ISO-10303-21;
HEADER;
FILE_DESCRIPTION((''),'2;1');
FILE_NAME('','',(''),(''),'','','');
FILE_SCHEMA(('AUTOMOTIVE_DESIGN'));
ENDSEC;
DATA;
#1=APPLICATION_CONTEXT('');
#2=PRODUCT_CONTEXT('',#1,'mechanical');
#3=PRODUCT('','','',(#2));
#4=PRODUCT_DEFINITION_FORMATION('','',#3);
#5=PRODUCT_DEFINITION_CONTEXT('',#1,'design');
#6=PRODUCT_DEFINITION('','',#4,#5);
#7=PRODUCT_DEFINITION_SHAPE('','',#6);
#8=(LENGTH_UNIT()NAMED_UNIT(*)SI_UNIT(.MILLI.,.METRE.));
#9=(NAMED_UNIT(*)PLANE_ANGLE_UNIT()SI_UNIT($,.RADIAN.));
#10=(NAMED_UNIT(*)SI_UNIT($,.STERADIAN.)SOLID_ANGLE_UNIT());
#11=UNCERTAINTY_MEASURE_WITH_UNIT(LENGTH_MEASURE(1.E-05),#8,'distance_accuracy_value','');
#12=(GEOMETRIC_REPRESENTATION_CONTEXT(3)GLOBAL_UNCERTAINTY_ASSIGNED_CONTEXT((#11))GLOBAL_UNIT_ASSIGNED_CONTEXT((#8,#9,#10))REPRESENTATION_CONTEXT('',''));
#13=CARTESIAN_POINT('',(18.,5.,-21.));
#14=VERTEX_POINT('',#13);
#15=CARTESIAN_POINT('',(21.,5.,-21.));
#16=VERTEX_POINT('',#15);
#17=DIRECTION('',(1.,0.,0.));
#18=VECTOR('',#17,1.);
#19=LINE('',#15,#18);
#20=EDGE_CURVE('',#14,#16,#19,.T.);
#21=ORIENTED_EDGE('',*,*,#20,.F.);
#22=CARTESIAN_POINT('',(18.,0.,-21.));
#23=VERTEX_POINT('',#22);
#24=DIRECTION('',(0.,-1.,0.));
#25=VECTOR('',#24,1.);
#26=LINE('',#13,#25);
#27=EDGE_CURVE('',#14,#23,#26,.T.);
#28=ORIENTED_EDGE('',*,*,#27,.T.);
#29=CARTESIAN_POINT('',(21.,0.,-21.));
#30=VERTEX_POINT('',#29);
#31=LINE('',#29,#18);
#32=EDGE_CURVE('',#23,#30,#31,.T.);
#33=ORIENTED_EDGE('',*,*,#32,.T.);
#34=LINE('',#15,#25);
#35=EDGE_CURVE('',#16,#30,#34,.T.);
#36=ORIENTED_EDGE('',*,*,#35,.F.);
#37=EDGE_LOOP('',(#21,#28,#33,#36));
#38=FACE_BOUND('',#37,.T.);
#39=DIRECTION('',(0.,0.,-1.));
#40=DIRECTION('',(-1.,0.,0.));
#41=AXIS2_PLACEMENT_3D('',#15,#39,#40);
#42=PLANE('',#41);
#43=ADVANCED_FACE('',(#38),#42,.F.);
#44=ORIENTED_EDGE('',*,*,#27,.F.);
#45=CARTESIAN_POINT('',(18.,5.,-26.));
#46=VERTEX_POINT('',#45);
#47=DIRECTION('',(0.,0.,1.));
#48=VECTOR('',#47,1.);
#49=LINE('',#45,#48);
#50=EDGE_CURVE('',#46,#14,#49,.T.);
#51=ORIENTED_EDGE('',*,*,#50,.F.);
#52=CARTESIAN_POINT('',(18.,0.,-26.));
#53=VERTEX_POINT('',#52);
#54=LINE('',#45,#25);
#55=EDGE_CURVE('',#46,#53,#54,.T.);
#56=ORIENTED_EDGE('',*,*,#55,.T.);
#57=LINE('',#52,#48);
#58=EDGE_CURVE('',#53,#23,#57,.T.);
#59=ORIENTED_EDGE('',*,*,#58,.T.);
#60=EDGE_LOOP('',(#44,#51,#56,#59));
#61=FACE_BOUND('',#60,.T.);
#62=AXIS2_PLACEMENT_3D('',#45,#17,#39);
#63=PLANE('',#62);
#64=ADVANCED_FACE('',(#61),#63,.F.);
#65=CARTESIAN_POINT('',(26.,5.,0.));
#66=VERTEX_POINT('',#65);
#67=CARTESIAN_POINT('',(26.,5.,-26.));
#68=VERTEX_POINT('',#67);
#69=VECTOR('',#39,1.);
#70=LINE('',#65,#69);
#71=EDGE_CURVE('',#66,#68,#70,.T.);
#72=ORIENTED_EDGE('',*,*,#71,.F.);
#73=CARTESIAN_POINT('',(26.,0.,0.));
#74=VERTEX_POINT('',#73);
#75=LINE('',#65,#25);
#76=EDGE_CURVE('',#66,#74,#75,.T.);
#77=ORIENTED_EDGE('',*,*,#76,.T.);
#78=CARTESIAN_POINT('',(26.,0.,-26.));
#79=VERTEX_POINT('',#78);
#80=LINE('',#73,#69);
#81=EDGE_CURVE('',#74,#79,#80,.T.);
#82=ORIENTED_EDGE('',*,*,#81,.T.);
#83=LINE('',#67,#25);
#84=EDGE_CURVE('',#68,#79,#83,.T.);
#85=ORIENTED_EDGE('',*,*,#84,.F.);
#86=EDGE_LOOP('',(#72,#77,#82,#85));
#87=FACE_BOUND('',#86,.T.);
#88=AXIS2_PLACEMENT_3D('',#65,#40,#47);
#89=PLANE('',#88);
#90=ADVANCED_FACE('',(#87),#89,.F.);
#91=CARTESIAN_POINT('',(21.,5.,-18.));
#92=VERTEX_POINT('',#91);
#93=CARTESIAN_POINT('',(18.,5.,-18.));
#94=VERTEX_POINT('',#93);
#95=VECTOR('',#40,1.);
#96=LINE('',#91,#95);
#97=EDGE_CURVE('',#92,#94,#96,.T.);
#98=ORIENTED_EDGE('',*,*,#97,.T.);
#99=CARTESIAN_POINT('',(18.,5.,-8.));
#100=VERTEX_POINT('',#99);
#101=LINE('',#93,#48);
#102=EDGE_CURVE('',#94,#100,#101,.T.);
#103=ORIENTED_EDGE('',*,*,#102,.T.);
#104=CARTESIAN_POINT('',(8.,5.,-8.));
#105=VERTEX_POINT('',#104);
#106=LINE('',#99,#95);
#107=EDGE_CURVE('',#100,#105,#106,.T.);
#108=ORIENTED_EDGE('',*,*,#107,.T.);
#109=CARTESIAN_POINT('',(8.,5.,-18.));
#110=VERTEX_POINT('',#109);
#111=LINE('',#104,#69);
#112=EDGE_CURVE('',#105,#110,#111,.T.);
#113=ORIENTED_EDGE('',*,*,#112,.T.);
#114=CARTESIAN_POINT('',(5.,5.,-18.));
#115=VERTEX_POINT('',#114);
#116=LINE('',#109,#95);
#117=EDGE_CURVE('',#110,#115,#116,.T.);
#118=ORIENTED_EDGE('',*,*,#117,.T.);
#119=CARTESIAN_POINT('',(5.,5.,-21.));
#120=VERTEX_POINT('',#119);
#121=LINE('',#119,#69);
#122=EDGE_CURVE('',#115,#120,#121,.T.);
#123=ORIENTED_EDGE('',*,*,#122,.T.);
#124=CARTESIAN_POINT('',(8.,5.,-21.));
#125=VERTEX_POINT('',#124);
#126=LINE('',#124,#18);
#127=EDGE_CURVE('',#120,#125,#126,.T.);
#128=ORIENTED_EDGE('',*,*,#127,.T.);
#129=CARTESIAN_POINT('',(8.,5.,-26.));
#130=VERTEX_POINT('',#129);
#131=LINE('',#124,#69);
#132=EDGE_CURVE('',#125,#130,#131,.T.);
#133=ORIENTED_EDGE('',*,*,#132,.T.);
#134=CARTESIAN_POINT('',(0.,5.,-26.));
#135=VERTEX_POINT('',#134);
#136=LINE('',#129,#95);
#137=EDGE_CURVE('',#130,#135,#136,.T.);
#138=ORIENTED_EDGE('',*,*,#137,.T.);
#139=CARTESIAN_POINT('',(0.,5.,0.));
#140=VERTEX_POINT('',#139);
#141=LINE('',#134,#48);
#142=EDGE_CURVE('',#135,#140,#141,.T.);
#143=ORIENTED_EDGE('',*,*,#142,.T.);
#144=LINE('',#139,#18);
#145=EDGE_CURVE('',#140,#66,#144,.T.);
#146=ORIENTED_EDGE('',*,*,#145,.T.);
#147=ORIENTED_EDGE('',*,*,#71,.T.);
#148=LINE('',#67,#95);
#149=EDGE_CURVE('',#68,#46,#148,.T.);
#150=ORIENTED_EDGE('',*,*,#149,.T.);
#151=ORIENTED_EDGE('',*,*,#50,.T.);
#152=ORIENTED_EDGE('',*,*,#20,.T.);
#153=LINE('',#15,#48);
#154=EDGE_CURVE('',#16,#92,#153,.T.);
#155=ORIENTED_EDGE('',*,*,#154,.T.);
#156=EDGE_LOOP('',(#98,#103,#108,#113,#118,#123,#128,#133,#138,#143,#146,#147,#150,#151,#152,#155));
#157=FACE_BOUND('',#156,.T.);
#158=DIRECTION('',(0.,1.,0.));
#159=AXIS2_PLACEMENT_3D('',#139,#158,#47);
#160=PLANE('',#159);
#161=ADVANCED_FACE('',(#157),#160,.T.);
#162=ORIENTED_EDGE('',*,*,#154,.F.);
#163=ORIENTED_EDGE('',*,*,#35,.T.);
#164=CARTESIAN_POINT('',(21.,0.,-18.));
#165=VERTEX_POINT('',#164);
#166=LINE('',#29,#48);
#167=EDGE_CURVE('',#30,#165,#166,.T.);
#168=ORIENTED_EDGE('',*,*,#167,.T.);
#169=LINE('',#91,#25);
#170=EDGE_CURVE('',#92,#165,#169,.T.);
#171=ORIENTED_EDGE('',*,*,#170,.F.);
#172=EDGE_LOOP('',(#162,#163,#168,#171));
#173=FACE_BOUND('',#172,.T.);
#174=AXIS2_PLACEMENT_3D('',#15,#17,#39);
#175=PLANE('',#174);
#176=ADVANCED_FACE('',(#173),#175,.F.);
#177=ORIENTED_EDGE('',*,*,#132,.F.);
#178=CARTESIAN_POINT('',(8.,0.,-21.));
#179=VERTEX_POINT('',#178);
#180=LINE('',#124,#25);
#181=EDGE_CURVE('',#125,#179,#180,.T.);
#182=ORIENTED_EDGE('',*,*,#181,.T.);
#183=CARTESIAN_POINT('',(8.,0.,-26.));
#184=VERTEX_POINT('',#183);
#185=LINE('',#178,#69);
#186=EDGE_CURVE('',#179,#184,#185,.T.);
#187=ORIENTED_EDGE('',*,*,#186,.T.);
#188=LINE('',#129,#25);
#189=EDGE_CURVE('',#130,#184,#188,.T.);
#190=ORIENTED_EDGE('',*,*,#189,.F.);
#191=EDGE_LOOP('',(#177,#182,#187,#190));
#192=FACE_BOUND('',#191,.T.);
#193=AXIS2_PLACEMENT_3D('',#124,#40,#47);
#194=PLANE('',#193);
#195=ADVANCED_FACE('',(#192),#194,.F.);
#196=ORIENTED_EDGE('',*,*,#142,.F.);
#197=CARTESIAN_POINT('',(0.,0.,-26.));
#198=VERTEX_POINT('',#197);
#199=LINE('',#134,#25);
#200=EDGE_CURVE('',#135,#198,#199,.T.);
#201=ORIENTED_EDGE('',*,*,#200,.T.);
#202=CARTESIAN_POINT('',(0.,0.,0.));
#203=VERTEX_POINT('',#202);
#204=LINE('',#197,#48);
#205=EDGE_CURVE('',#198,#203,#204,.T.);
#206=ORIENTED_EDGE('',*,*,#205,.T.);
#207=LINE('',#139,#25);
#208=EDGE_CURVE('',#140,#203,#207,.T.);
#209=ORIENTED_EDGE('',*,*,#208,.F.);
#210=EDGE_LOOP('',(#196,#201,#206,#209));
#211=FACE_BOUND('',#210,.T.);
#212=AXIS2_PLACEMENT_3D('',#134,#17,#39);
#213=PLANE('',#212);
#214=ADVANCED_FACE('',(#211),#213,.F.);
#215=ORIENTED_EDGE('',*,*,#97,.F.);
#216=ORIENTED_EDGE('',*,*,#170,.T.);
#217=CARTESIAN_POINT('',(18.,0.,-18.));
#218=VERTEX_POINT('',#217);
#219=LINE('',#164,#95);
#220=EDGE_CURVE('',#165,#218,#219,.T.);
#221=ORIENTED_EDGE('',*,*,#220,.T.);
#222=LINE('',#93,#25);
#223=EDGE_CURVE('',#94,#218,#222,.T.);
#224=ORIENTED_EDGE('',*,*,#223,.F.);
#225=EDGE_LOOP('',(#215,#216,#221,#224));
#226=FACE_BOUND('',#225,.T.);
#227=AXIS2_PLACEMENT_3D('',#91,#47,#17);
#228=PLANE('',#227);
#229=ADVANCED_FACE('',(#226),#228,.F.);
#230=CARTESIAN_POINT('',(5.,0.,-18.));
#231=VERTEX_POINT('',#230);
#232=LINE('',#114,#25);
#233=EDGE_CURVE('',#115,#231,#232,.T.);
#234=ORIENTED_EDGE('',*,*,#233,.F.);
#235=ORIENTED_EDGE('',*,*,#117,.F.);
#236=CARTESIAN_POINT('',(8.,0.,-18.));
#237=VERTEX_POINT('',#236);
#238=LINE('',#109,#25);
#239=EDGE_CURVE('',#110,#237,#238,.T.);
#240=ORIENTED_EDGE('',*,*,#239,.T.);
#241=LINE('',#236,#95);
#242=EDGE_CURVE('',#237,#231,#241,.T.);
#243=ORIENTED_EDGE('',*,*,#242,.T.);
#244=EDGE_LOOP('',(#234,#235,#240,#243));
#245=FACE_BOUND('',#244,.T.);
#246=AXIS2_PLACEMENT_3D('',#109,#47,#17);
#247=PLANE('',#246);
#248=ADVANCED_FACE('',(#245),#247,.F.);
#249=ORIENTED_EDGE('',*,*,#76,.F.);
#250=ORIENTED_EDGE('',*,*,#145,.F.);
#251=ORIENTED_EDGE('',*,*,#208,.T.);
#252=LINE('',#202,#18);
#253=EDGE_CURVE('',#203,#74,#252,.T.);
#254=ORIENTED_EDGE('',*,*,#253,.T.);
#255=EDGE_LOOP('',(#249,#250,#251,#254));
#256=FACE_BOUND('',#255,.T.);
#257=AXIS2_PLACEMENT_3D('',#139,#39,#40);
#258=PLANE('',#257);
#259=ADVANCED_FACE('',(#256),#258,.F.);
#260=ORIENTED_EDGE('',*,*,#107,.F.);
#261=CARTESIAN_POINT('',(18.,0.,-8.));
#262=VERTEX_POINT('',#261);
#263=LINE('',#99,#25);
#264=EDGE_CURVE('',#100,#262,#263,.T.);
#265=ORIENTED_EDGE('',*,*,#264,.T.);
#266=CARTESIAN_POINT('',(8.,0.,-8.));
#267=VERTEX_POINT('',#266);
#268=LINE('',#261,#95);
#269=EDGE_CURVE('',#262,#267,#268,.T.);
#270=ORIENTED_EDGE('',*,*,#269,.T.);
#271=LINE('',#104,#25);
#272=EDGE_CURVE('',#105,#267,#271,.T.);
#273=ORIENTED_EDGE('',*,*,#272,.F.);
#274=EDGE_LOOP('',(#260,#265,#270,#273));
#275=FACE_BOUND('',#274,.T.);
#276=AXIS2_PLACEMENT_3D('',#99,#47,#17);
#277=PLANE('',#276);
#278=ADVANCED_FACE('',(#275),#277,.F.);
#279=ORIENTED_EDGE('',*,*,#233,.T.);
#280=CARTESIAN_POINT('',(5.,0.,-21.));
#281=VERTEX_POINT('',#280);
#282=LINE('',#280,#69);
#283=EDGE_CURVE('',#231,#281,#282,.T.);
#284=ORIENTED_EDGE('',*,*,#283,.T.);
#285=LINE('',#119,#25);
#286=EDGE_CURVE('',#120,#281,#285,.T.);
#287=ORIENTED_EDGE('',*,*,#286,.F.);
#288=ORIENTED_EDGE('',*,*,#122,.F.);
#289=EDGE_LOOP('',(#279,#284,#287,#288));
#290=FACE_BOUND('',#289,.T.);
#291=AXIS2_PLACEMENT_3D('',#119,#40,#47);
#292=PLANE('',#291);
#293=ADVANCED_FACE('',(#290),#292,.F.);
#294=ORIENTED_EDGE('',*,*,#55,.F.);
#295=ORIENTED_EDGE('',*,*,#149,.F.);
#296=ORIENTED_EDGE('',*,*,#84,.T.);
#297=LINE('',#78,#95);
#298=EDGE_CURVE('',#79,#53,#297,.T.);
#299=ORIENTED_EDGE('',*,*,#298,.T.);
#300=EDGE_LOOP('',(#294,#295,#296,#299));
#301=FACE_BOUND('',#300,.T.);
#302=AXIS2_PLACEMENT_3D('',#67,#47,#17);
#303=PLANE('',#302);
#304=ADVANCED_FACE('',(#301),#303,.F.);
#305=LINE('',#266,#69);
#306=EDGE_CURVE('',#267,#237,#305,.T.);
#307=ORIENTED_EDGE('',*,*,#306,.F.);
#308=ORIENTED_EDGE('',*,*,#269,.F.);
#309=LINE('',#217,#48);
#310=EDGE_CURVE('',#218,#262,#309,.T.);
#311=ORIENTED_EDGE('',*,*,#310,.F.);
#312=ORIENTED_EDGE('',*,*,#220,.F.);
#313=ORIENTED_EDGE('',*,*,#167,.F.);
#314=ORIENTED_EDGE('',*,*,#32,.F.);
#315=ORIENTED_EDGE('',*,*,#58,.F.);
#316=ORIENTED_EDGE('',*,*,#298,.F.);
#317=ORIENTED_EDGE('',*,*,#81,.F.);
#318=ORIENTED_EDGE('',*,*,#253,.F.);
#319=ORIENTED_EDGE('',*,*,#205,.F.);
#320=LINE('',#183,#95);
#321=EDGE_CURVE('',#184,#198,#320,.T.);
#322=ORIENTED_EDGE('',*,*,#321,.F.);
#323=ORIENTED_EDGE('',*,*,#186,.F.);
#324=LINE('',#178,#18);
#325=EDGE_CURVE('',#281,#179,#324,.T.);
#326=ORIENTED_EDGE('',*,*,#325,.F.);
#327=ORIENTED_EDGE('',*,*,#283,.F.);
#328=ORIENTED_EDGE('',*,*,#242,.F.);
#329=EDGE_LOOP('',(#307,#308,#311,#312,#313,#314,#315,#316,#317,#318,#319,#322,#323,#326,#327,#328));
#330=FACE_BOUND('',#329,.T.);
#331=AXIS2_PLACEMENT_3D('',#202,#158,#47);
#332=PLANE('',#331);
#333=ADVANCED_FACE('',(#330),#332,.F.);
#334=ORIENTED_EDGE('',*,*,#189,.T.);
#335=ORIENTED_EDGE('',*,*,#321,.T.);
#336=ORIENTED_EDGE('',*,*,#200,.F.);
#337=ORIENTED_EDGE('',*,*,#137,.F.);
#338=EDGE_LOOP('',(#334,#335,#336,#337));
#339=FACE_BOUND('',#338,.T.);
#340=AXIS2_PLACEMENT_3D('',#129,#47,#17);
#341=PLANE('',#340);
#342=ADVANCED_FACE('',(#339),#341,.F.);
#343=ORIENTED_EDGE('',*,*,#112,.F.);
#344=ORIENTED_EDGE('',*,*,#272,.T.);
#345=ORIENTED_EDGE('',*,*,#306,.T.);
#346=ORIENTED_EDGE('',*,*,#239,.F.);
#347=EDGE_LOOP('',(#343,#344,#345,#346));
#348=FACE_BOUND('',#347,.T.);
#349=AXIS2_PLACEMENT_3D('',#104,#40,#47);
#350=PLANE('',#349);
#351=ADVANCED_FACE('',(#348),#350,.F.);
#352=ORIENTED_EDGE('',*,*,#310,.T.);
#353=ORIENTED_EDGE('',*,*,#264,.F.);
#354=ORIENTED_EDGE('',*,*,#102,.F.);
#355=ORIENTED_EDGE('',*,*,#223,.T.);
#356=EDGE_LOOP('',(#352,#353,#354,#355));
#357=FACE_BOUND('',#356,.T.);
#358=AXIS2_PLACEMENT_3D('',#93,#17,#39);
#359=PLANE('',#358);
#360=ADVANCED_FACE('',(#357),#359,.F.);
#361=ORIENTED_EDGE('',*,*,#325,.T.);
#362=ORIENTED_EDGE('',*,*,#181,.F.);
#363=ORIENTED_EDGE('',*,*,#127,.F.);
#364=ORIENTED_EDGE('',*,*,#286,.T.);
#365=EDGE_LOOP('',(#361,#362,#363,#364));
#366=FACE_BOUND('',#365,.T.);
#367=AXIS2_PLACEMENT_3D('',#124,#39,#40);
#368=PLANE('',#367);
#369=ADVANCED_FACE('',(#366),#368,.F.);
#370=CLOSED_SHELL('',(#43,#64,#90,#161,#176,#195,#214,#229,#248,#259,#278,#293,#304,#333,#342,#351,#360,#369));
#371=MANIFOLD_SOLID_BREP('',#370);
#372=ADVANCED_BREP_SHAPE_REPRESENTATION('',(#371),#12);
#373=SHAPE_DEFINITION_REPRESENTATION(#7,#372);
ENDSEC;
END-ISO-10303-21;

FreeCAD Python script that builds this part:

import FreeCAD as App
import Part
import Sketcher

V = App.Vector
Q = App.Units.Quantity


def add_polygon(sketch, points):
    """Adds a closed chain of lines whose ends are joined by coincident constraints."""
    first, n = sketch.GeometryCount, len(points)
    for a, b in zip(points, points[1:] + points[:1]):
        sketch.addGeometry(Part.LineSegment(App.Vector(*a, 0), App.Vector(*b, 0)), False)
    for i in range(n):
        sketch.addConstraint(Sketcher.Constraint("Coincident", first + i, 2, first + (i + 1) % n, 1))

doc = App.newDocument("Part")
body = doc.addObject("PartDesign::Body", "Body")

# Sketch on XZ plane
sketch1 = body.newObject("Sketcher::SketchObject", "Sketch")
sketch1.AttachmentSupport = (doc.getObject("XZ_Plane"), [""])
sketch1.MapMode = "FlatFace"
add_polygon(sketch1, [(0, -26), (0, 0), (26, 0), (26, -26), (18, -26), (18, -21), (21, -21), (21, -18), (18, -18), (18, -8), (8, -8), (8, -18), (5, -18), (5, -21), (8, -21), (8, -26)])  # lines 0-15
sketch1.addConstraint(Sketcher.Constraint("Vertical", 0))
sketch1.addConstraint(Sketcher.Constraint("Horizontal", 1))
sketch1.addConstraint(Sketcher.Constraint("Vertical", 2))
sketch1.addConstraint(Sketcher.Constraint("Horizontal", 3))
sketch1.addConstraint(Sketcher.Constraint("Vertical", 4))
sketch1.addConstraint(Sketcher.Constraint("Horizontal", 5))
sketch1.addConstraint(Sketcher.Constraint("Vertical", 6))
sketch1.addConstraint(Sketcher.Constraint("Horizontal", 7))
sketch1.addConstraint(Sketcher.Constraint("Vertical", 8))
sketch1.addConstraint(Sketcher.Constraint("Horizontal", 9))
sketch1.addConstraint(Sketcher.Constraint("Vertical", 10))
sketch1.addConstraint(Sketcher.Constraint("Horizontal", 11))
sketch1.addConstraint(Sketcher.Constraint("Vertical", 12))
sketch1.addConstraint(Sketcher.Constraint("Horizontal", 13))
sketch1.addConstraint(Sketcher.Constraint("Vertical", 14))
sketch1.addConstraint(Sketcher.Constraint("Horizontal", 15))
sketch1.addConstraint(Sketcher.Constraint("Coincident", 0, 2, -1, 1))
sketch1.addConstraint(Sketcher.Constraint("Horizontal", 7, 2, 10, 2))
sketch1.addConstraint(Sketcher.Constraint("Horizontal", 5, 2, 12, 2))
sketch1.addConstraint(Sketcher.Constraint("Horizontal", 3, 2, 14, 2))
sketch1.addConstraint(Sketcher.Constraint("Vertical", 4, 2, 7, 2))
sketch1.addConstraint(Sketcher.Constraint("Vertical", 10, 2, 13, 2))
sketch1.addConstraint(Sketcher.Constraint("Equal", 7, 11))
sketch1.addConstraint(Sketcher.Constraint("Equal", 3, 15))
sketch1.addConstraint(Sketcher.Constraint("Equal", 1, 0))
sketch1.addConstraint(Sketcher.Constraint("Equal", 13, 6))
sketch1.addConstraint(Sketcher.Constraint("Equal", 9, 8))
sketch1.addConstraint(Sketcher.Constraint("DistanceX", 1, 1, 1, 2, Q("26 mm")))
sketch1.addConstraint(Sketcher.Constraint("DistanceX", 3, 2, 3, 1, Q("8 mm")))
sketch1.addConstraint(Sketcher.Constraint("DistanceX", 5, 1, 5, 2, Q("3 mm")))
sketch1.addConstraint(Sketcher.Constraint("DistanceY", 4, 1, 4, 2, Q("5 mm")))
pad1 = body.newObject("PartDesign::Pad", "Pad")
pad1.Profile = sketch1
pad1.Length = 5
pad1.Reversed = True

doc.recompute()
